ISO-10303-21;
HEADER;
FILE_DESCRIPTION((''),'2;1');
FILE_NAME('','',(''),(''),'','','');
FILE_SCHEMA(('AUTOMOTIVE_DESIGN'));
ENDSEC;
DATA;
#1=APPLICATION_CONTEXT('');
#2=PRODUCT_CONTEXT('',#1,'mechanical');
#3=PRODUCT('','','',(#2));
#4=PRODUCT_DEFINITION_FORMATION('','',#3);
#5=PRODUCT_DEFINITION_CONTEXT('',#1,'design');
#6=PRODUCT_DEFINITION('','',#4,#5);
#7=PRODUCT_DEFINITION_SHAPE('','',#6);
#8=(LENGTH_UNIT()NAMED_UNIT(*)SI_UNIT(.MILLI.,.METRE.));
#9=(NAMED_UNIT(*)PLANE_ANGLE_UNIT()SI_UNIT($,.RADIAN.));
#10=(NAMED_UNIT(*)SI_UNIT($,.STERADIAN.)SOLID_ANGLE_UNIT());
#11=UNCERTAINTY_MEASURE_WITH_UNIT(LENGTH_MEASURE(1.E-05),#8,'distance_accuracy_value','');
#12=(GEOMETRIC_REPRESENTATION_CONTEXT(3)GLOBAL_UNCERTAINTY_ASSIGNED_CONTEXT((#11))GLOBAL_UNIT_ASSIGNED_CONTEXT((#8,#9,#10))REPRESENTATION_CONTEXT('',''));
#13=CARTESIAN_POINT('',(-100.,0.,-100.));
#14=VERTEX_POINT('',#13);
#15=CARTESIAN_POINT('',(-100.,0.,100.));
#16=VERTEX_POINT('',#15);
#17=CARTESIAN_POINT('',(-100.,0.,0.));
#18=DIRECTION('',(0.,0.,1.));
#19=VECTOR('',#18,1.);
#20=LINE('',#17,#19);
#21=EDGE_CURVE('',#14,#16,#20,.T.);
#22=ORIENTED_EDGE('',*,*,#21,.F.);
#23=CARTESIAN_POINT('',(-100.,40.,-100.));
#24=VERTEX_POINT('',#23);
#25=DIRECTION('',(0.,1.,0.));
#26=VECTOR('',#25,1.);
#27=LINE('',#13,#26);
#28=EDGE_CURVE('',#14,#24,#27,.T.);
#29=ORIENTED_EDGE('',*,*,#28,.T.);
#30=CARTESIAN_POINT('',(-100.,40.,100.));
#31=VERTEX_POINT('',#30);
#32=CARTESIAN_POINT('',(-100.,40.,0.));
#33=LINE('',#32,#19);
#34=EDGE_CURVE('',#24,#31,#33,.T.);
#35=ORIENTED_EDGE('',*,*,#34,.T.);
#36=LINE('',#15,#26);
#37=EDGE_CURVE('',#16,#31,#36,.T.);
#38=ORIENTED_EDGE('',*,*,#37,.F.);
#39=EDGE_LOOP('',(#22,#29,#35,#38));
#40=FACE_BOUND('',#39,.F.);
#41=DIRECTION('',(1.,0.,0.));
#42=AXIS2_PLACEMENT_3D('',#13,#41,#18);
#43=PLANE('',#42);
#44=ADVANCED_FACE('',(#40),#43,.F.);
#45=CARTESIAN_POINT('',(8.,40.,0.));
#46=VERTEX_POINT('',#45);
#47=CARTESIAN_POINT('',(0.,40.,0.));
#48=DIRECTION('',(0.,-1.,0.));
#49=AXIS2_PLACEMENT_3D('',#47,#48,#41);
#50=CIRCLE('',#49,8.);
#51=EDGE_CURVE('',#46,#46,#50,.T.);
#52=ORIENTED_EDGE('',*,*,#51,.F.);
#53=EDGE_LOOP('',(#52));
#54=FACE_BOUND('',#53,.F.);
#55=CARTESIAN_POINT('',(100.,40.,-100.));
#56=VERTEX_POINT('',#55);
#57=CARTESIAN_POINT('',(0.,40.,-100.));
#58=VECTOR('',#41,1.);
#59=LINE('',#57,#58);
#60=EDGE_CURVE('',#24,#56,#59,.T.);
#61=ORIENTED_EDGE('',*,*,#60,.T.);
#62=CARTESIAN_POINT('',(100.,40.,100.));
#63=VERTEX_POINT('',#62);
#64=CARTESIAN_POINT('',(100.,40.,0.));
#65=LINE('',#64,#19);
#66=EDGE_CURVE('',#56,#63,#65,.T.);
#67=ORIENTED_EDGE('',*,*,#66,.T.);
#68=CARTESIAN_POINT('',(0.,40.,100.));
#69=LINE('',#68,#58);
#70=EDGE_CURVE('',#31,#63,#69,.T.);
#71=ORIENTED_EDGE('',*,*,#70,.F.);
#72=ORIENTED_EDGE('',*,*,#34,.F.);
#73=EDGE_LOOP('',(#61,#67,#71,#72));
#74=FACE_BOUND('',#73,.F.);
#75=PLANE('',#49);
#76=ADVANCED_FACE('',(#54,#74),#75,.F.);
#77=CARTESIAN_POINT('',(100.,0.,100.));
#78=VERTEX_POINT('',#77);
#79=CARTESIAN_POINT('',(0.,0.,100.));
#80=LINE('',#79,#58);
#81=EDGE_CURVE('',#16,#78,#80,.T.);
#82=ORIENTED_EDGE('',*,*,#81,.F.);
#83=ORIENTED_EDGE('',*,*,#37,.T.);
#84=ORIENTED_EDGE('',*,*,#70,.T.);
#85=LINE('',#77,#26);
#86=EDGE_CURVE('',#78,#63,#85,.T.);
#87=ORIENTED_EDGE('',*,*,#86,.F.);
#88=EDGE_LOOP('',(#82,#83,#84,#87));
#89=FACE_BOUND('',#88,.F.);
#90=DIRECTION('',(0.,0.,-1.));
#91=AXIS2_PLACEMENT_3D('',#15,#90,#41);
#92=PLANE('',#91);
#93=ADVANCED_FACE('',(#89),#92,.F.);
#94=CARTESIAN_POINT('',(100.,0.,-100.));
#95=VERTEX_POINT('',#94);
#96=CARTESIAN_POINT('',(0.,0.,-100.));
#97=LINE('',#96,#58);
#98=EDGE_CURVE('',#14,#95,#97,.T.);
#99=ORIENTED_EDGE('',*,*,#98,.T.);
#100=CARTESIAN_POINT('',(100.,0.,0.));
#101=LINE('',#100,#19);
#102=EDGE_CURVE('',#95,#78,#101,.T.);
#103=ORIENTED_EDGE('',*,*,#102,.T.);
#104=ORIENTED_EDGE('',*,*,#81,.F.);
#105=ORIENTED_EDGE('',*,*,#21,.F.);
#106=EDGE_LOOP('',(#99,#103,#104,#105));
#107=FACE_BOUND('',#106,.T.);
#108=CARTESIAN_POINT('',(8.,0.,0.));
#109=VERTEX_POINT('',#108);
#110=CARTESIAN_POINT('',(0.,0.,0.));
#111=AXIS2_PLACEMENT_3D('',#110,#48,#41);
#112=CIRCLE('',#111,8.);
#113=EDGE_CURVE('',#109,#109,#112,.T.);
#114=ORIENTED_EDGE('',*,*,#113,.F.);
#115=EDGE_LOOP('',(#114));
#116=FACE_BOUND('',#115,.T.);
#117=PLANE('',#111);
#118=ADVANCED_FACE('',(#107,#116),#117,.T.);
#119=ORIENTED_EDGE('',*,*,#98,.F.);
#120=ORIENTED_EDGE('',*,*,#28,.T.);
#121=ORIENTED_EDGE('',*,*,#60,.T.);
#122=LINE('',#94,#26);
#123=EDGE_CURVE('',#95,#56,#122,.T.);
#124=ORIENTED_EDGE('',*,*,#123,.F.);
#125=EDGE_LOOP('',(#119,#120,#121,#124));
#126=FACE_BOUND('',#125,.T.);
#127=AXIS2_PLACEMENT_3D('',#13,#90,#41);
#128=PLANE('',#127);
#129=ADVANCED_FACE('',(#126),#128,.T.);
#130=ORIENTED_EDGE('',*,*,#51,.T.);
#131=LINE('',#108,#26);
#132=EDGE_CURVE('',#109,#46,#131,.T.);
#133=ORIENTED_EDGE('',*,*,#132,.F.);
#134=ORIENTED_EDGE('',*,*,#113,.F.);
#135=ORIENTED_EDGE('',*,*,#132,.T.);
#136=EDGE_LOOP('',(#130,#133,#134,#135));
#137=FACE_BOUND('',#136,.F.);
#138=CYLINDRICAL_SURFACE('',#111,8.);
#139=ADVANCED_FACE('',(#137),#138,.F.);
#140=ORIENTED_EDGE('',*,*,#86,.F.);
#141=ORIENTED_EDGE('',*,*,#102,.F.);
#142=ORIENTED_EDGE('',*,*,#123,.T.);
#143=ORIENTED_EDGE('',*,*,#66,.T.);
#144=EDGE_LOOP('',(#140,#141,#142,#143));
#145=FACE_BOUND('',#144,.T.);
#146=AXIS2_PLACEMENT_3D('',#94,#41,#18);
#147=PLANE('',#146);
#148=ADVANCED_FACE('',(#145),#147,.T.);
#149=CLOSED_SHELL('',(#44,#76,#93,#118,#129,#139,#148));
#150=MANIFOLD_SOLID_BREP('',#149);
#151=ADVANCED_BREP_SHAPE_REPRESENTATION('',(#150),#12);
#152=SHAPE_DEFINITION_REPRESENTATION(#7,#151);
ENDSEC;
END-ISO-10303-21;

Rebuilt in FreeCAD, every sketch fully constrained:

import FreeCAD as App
import Part
import Sketcher
from FreeCAD import Vector

doc = App.newDocument("Part")
body = doc.addObject("PartDesign::Body", "Body")

# Sketch on XZ plane
sketch1 = body.newObject("Sketcher::SketchObject", "Sketch")
sketch1.AttachmentSupport = (doc.getObject("XZ_Plane"), [""])
sketch1.MapMode = "FlatFace"
sketch1.addGeometry([
    Part.LineSegment(Vector(-100, 100, 0), Vector(-100, -100, 0)),  # 0
    Part.LineSegment(Vector(-100, -100, 0), Vector(100, -100, 0)),  # 1
    Part.LineSegment(Vector(100, -100, 0), Vector(100, 100, 0)),  # 2
    Part.LineSegment(Vector(100, 100, 0), Vector(-100, 100, 0)),  # 3
    Part.Circle(Vector(0, 0, 0), Vector(0, 0, 1), 8),  # 4
], False)
sketch1.addConstraint([
    Sketcher.Constraint("Coincident", 0, 2, 1, 1),
    Sketcher.Constraint("Coincident", 1, 2, 2, 1),
    Sketcher.Constraint("Coincident", 2, 2, 3, 1),
    Sketcher.Constraint("Coincident", 3, 2, 0, 1),
    Sketcher.Constraint("Vertical", 0),
    Sketcher.Constraint("Horizontal", 1),
    Sketcher.Constraint("Vertical", 2),
    Sketcher.Constraint("Horizontal", 3),
    Sketcher.Constraint("Coincident", 4, 3, -1, 1),
    Sketcher.Constraint("Symmetric", 0, 2, 2, 2, -1, 1),
    Sketcher.Constraint("Equal", 3, 0),
    Sketcher.Constraint("Diameter", 4, 16.0),
    Sketcher.Constraint("DistanceX", 1, 1, 1, 2, 200.0),
])
pad1 = body.newObject("PartDesign::Pad", "Pad")
pad1.Profile = sketch1
pad1.Length = 40
pad1.Reversed = True

doc.recompute()
